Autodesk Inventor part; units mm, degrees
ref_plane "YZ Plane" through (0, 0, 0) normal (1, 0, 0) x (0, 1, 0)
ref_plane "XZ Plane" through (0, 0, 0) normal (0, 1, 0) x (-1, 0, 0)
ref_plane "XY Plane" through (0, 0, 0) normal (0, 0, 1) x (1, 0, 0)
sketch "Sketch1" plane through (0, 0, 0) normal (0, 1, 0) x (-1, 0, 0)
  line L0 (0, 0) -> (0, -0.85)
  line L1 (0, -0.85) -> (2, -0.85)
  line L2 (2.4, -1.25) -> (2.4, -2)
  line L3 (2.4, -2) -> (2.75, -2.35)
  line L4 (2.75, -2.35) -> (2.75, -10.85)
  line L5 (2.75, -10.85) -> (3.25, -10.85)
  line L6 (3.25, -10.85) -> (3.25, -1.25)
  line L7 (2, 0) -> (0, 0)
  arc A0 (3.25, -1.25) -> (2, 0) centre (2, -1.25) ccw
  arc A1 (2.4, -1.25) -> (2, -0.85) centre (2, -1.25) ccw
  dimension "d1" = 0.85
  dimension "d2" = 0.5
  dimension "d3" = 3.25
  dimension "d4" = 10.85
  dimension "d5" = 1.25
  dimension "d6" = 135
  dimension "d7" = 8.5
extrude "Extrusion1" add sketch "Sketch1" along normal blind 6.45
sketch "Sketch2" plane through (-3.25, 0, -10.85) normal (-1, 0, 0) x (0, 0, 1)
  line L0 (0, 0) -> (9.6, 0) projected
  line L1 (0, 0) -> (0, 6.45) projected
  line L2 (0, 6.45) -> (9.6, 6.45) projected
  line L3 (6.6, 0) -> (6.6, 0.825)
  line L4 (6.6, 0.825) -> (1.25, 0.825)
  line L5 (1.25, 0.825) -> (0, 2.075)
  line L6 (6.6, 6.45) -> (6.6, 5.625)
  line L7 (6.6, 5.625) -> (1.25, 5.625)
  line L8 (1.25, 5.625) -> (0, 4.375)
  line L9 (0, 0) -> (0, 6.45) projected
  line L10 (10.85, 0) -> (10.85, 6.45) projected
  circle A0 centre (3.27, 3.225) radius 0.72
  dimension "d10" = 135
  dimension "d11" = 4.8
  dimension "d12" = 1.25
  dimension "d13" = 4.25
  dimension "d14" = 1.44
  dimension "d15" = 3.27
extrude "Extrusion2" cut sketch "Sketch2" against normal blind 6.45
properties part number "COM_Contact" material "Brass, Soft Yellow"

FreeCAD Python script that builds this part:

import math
import FreeCAD as App
import Part
import Sketcher

V = App.Vector
Q = App.Units.Quantity


def add_polygon(sketch, points):
    """Adds a closed chain of lines whose ends are joined by coincident constraints."""
    first, n = sketch.GeometryCount, len(points)
    for a, b in zip(points, points[1:] + points[:1]):
        sketch.addGeometry(Part.LineSegment(App.Vector(*a, 0), App.Vector(*b, 0)), False)
    for i in range(n):
        sketch.addConstraint(Sketcher.Constraint("Coincident", first + i, 2, first + (i + 1) % n, 1))

doc = App.newDocument("Part")
body = doc.addObject("PartDesign::Body", "Body")

# Sketch on XZ plane
sketch1 = doc.addObject("Sketcher::SketchObject", "Sketch")
body.addObject(sketch1)
sketch1.AttachmentSupport = (doc.XZ_Plane, [""])
sketch1.MapMode = "FlatFace"
sketch1.addGeometry(Part.LineSegment(V(-2, 0, 0), V(0, 0, 0)), False)
sketch1.addGeometry(Part.LineSegment(V(0, 0, 0), V(0, -0.85, 0)), False)
sketch1.addGeometry(Part.LineSegment(V(0, -0.85, 0), V(-2, -0.85, 0)), False)
sketch1.addGeometry(Part.ArcOfCircle(Part.Circle(V(-2, -1.25, 0), V(0, 0, 1), 0.4), math.radians(90), math.radians(180)), False)
sketch1.addGeometry(Part.LineSegment(V(-2.4, -1.25, 0), V(-2.4, -2, 0)), False)
sketch1.addGeometry(Part.LineSegment(V(-2.4, -2, 0), V(-2.75, -2.35, 0)), False)
sketch1.addGeometry(Part.LineSegment(V(-2.75, -2.35, 0), V(-2.75, -10.85, 0)), False)
sketch1.addGeometry(Part.LineSegment(V(-2.75, -10.85, 0), V(-3.25, -10.85, 0)), False)
sketch1.addGeometry(Part.LineSegment(V(-3.25, -10.85, 0), V(-3.25, -1.25, 0)), False)
sketch1.addGeometry(Part.ArcOfCircle(Part.Circle(V(-2, -1.25, 0), V(0, 0, 1), 1.25), math.radians(90), math.radians(180)), False)
sketch1.addConstraint(Sketcher.Constraint("Coincident", 0, 2, 1, 1))
sketch1.addConstraint(Sketcher.Constraint("Coincident", 1, 2, 2, 1))
sketch1.addConstraint(Sketcher.Constraint("Tangent", 2, 2, 3, 1))
sketch1.addConstraint(Sketcher.Constraint("Tangent", 3, 2, 4, 1))
sketch1.addConstraint(Sketcher.Constraint("Coincident", 4, 2, 5, 1))
sketch1.addConstraint(Sketcher.Constraint("Coincident", 5, 2, 6, 1))
sketch1.addConstraint(Sketcher.Constraint("Coincident", 6, 2, 7, 1))
sketch1.addConstraint(Sketcher.Constraint("Coincident", 7, 2, 8, 1))
sketch1.addConstraint(Sketcher.Constraint("Tangent", 8, 2, 9, 2))
sketch1.addConstraint(Sketcher.Constraint("Tangent", 9, 1, 0, 1))
sketch1.addConstraint(Sketcher.Constraint("Horizontal", 0))
sketch1.addConstraint(Sketcher.Constraint("Vertical", 1))
sketch1.addConstraint(Sketcher.Constraint("Horizontal", 2))
sketch1.addConstraint(Sketcher.Constraint("Vertical", 4))
sketch1.addConstraint(Sketcher.Constraint("Vertical", 6))
sketch1.addConstraint(Sketcher.Constraint("Horizontal", 7))
sketch1.addConstraint(Sketcher.Constraint("Vertical", 8))
sketch1.addConstraint(Sketcher.Constraint("Coincident", 0, 2, -1, 1))
sketch1.addConstraint(Sketcher.Constraint("Coincident", 9, 3, 3, 3))
sketch1.addConstraint(Sketcher.Constraint("Angle", 5, Q("-135 deg")))
sketch1.addConstraint(Sketcher.Constraint("Radius", 9, 1.25))
sketch1.addConstraint(Sketcher.Constraint("DistanceX", 7, 2, 7, 1, 0.5))
sketch1.addConstraint(Sketcher.Constraint("DistanceY", 6, 2, 6, 1, 8.5))
sketch1.addConstraint(Sketcher.Constraint("DistanceY", 1, 2, 1, 1, 0.85))
sketch1.addConstraint(Sketcher.Constraint("DistanceX", 0, 1, 0, 2, 2.0))
sketch1.addConstraint(Sketcher.Constraint("DistanceY", 6, 2, -1, 1, 10.85))
pad1 = doc.addObject("PartDesign::Pad", "Pad")
body.addObject(pad1)
pad1.Profile = sketch1
pad1.Length = 6.45
pad1.Reversed = True

# Sketch on YZ plane
sketch2 = doc.addObject("Sketcher::SketchObject", "Sketch001")
body.addObject(sketch2)
sketch2.AttachmentSupport = (doc.YZ_Plane, [""])
sketch2.MapMode = "FlatFace"
sketch2.AttachmentOffset = App.Placement(V(0, 0, -3.25), App.Rotation())
add_polygon(sketch2, [(2.1, -10.8), (0, -10.8), (0, -4.2), (0.8, -4.2), (0.8, -9.6)])  # lines 0-4
add_polygon(sketch2, [(6.5, -10.8), (4.4, -10.8), (5.6, -9.6), (5.6, -4.2), (6.5, -4.2)])  # lines 5-9
sketch2.addGeometry(Part.Circle(V(3.2, -7.6, 0), V(0, 0, 1), 0.7), False)  # 10
sketch2.addConstraint(Sketcher.Constraint("Horizontal", 0))
sketch2.addConstraint(Sketcher.Constraint("Vertical", 1))
sketch2.addConstraint(Sketcher.Constraint("Horizontal", 2))
sketch2.addConstraint(Sketcher.Constraint("Vertical", 3))
sketch2.addConstraint(Sketcher.Constraint("Horizontal", 5))
sketch2.addConstraint(Sketcher.Constraint("Vertical", 7))
sketch2.addConstraint(Sketcher.Constraint("Horizontal", 8))
sketch2.addConstraint(Sketcher.Constraint("Vertical", 9))
sketch2.addConstraint(Sketcher.Constraint("PointOnObject", 0, 2, -2))
sketch2.addConstraint(Sketcher.Constraint("Perpendicular", 4, 6))
sketch2.addConstraint(Sketcher.Constraint("Horizontal", 4, 2, 5, 2))
sketch2.addConstraint(Sketcher.Constraint("Horizontal", 3, 2, 6, 2))
sketch2.addConstraint(Sketcher.Constraint("Horizontal", 2, 2, 7, 2))
sketch2.addConstraint(Sketcher.Constraint("Equal", 0, 5))
sketch2.addConstraint(Sketcher.Constraint("Equal", 2, 8))
sketch2.addConstraint(Sketcher.Constraint("Diameter", 10, 1.44))
sketch2.addConstraint(Sketcher.Constraint("DistanceX", 3, 2, 6, 2, 4.8))
sketch2.addConstraint(Sketcher.Constraint("DistanceY", 1, 2, -1, 1, 4.25))
sketch2.addConstraint(Sketcher.Constraint("DistanceY", 0, 2, 10, 3, 3.27))
sketch2.addConstraint(Sketcher.Constraint("DistanceY", 0, 2, 3, 2, 1.25))
sketch2.addConstraint(Sketcher.Constraint("DistanceY", 1, 1, 1, 2, 6.6))
sketch2.addConstraint(Sketcher.Constraint("DistanceX", 2, 2, 10, 3, 2.4))
sketch2.addConstraint(Sketcher.Constraint("DistanceX", 0, 2, 0, 1, 2.075))
pocket1 = doc.addObject("PartDesign::Pocket", "Pocket")
body.addObject(pocket1)
pocket1.Profile = sketch2
pocket1.Length = 6.45
pocket1.Reversed = True

doc.recompute()
